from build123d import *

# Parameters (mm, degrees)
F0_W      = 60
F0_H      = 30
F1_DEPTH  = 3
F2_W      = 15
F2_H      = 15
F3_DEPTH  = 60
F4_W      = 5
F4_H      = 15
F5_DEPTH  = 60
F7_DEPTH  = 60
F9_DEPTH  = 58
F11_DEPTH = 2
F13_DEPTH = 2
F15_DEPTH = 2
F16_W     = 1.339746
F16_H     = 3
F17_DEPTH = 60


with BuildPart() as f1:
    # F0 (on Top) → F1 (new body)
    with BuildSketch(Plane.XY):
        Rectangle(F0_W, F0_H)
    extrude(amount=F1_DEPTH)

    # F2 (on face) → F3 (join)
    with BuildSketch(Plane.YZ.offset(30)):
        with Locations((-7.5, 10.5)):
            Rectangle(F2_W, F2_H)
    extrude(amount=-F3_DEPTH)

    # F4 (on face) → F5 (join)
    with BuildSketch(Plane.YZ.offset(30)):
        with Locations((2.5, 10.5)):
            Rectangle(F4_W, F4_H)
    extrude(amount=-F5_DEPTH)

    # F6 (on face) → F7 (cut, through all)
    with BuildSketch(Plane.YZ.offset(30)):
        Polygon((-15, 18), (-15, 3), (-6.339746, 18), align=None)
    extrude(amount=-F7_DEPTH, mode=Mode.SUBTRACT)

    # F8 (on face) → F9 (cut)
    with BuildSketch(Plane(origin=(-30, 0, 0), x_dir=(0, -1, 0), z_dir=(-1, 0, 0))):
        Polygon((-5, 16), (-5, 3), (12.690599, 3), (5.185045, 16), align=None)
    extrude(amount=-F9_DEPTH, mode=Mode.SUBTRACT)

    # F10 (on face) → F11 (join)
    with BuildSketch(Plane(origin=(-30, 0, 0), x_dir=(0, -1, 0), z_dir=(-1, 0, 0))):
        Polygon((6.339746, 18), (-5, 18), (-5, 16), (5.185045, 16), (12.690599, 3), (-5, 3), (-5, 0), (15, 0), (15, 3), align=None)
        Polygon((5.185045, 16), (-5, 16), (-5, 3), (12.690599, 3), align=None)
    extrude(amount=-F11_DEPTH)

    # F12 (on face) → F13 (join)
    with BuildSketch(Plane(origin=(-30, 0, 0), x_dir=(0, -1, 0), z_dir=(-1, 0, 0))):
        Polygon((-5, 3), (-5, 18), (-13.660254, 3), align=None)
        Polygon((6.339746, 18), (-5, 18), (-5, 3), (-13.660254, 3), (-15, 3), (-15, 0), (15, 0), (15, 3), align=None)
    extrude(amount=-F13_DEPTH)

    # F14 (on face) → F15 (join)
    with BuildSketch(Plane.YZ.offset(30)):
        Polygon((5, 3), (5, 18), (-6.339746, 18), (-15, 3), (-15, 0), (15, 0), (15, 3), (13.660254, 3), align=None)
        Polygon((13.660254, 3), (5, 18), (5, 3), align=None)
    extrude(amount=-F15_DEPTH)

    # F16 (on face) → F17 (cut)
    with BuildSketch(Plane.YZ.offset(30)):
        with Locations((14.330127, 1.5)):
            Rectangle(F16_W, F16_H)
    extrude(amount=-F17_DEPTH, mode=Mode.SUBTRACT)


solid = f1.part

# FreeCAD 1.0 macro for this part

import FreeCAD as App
import Part
import Sketcher
from FreeCAD import Vector
Q = App.Units.Quantity


def add_polygon(sketch, points):
    """Adds a closed chain of lines whose ends are joined by coincident constraints."""
    first, n = sketch.GeometryCount, len(points)
    for a, b in zip(points, points[1:] + points[:1]):
        sketch.addGeometry(Part.LineSegment(App.Vector(*a, 0), App.Vector(*b, 0)), False)
    for i in range(n):
        sketch.addConstraint(Sketcher.Constraint("Coincident", first + i, 2, first + (i + 1) % n, 1))

doc = App.newDocument("Part")
body = doc.addObject("PartDesign::Body", "Body")

# Sketch on XY plane
sketch1 = doc.addObject("Sketcher::SketchObject", "Sketch")
body.addObject(sketch1)
sketch1.AttachmentSupport = (doc.XY_Plane, [""])
sketch1.MapMode = "FlatFace"
add_polygon(sketch1, [(-30, 15), (-30, -15), (30, -15), (30, 15)])  # lines 0-3
sketch1.addConstraint([
    Sketcher.Constraint("Vertical", 0),
    Sketcher.Constraint("Horizontal", 1),
    Sketcher.Constraint("Vertical", 2),
    Sketcher.Constraint("Horizontal", 3),
    Sketcher.Constraint("Symmetric", 0, 2, 2, 2, -1, 1),
    Sketcher.Constraint("DistanceX", 1, 1, 1, 2, 60.0),
    Sketcher.Constraint("DistanceY", 0, 2, 0, 1, 30.0),
])
pad1 = doc.addObject("PartDesign::Pad", "Pad")
body.addObject(pad1)
pad1.Profile = sketch1
pad1.Length = 3

# Sketch on YZ plane
sketch2 = doc.addObject("Sketcher::SketchObject", "Sketch001")
body.addObject(sketch2)
sketch2.AttachmentSupport = (doc.YZ_Plane, [""])
sketch2.MapMode = "FlatFace"
sketch2.AttachmentOffset = App.Placement(Vector(0, 0, 30), App.Rotation())
add_polygon(sketch2, [(-15, 18), (-15, 3), (0, 3), (0, 18)])  # lines 0-3
sketch2.addConstraint([
    Sketcher.Constraint("Vertical", 0),
    Sketcher.Constraint("Horizontal", 1),
    Sketcher.Constraint("Vertical", 2),
    Sketcher.Constraint("Horizontal", 3),
    Sketcher.Constraint("PointOnObject", 1, 2, -2),
    Sketcher.Constraint("Equal", 3, 0),
    Sketcher.Constraint("DistanceX", 1, 1, 1, 2, 15.0),
    Sketcher.Constraint("DistanceY", -1, 1, 0, 2, 3.0),
])
pad2 = doc.addObject("PartDesign::Pad", "Pad001")
body.addObject(pad2)
pad2.Profile = sketch2
pad2.Length = 60
pad2.Reversed = True

# Sketch on YZ plane
sketch3 = doc.addObject("Sketcher::SketchObject", "Sketch002")
body.addObject(sketch3)
sketch3.AttachmentSupport = (doc.YZ_Plane, [""])
sketch3.MapMode = "FlatFace"
sketch3.AttachmentOffset = App.Placement(Vector(0, 0, 30), App.Rotation())
add_polygon(sketch3, [(0, 18), (0, 3), (5, 3), (5, 18)])  # lines 0-3
sketch3.addConstraint([
    Sketcher.Constraint("Vertical", 0),
    Sketcher.Constraint("Horizontal", 1),
    Sketcher.Constraint("Vertical", 2),
    Sketcher.Constraint("Horizontal", 3),
    Sketcher.Constraint("PointOnObject", 0, 2, -2),
    Sketcher.Constraint("DistanceX", 1, 1, 1, 2, 5.0),
    Sketcher.Constraint("DistanceY", 0, 2, 0, 1, 15.0),
    Sketcher.Constraint("DistanceY", -1, 1, 0, 2, 3.0),
])
pad3 = doc.addObject("PartDesign::Pad", "Pad002")
body.addObject(pad3)
pad3.Profile = sketch3
pad3.Length = 60
pad3.Reversed = True

# Sketch on YZ plane
sketch4 = doc.addObject("Sketcher::SketchObject", "Sketch003")
body.addObject(sketch4)
sketch4.AttachmentSupport = (doc.YZ_Plane, [""])
sketch4.MapMode = "FlatFace"
sketch4.AttachmentOffset = App.Placement(Vector(0, 0, 30), App.Rotation())
add_polygon(sketch4, [(-15, 18), (-15, 3), (-6.339746, 18)])  # lines 0-2
sketch4.addConstraint([
    Sketcher.Constraint("Vertical", 0),
    Sketcher.Constraint("Horizontal", 2),
    Sketcher.Constraint("DistanceY", 0, 2, 0, 1, 15.0),
    Sketcher.Constraint("Angle", 1, Q("60 deg")),
    Sketcher.Constraint("DistanceX", 0, 2, -1, 1, 15.0),
    Sketcher.Constraint("DistanceY", -1, 1, 0, 2, 3.0),
])
pocket1 = doc.addObject("PartDesign::Pocket", "Pocket")
body.addObject(pocket1)
pocket1.Profile = sketch4
pocket1.Type = "ThroughAll"

# Sketch on YZ plane
sketch5 = doc.addObject("Sketcher::SketchObject", "Sketch004")
body.addObject(sketch5)
sketch5.AttachmentSupport = (doc.YZ_Plane, [""])
sketch5.MapMode = "FlatFace"
sketch5.AttachmentOffset = App.Placement(Vector(0, 0, -30), App.Rotation())
add_polygon(sketch5, [(5, 16), (5, 3), (-12.690599, 3), (-5.185045, 16)])  # lines 0-3
sketch5.addConstraint([
    Sketcher.Constraint("Vertical", 0),
    Sketcher.Constraint("Horizontal", 1),
    Sketcher.Constraint("Horizontal", 3),
    Sketcher.Constraint("DistanceY", 0, 2, 0, 1, 13.0),
    Sketcher.Constraint("Angle", 2, Q("59.999998 deg")),
    Sketcher.Constraint("DistanceX", -1, 1, 0, 2, 5.0),
    Sketcher.Constraint("DistanceY", -1, 1, 0, 2, 3.0),
    Sketcher.Constraint("DistanceX", 1, 2, 1, 1, 17.690599),
])
pocket2 = doc.addObject("PartDesign::Pocket", "Pocket001")
body.addObject(pocket2)
pocket2.Profile = sketch5
pocket2.Length = 58
pocket2.Reversed = True

# Sketch on YZ plane
sketch6 = doc.addObject("Sketcher::SketchObject", "Sketch005")
body.addObject(sketch6)
sketch6.AttachmentSupport = (doc.YZ_Plane, [""])
sketch6.MapMode = "FlatFace"
sketch6.AttachmentOffset = App.Placement(Vector(0, 0, -30), App.Rotation())
add_polygon(sketch6, [(-6.339746, 18), (5, 18), (5, 0), (-15, 0), (-15, 3)])  # lines 0-4
sketch6.addConstraint([
    Sketcher.Constraint("Horizontal", 0),
    Sketcher.Constraint("Vertical", 1),
    Sketcher.Constraint("Horizontal", 2),
    Sketcher.Constraint("Vertical", 3),
    Sketcher.Constraint("PointOnObject", 1, 2, -1),
    Sketcher.Constraint("DistanceX", 2, 2, 2, 1, 20.0),
    Sketcher.Constraint("DistanceY", 1, 2, 1, 1, 18.0),
    Sketcher.Constraint("DistanceY", 3, 1, 3, 2, 3.0),
    Sketcher.Constraint("Angle", 4, Q("60 deg")),
    Sketcher.Constraint("DistanceX", -1, 1, 0, 2, 5.0),
])
pad4 = doc.addObject("PartDesign::Pad", "Pad003")
body.addObject(pad4)
pad4.Profile = sketch6
pad4.Length = 2

# Sketch on YZ plane
sketch7 = doc.addObject("Sketcher::SketchObject", "Sketch006")
body.addObject(sketch7)
sketch7.AttachmentSupport = (doc.YZ_Plane, [""])
sketch7.MapMode = "FlatFace"
sketch7.AttachmentOffset = App.Placement(Vector(0, 0, -30), App.Rotation())
add_polygon(sketch7, [(5, 18), (13.660254, 3), (15, 3), (15, 0), (-15, 0), (-15, 3), (-6.339746, 18)])  # lines 0-6
sketch7.addConstraint([
    Sketcher.Constraint("Horizontal", 1),
    Sketcher.Constraint("Vertical", 2),
    Sketcher.Constraint("Horizontal", 3),
    Sketcher.Constraint("Vertical", 4),
    Sketcher.Constraint("Horizontal", 6),
    Sketcher.Constraint("Symmetric", 2, 2, 3, 2, -1, 1),
    Sketcher.Constraint("Horizontal", 1, 2, 4, 2),
    Sketcher.Constraint("Equal", 0, 5),
    Sketcher.Constraint("DistanceX", 3, 2, 3, 1, 30.0),
    Sketcher.Constraint("DistanceY", 2, 2, 2, 1, 3.0),
    Sketcher.Constraint("Angle", 0, Q("-60 deg")),
    Sketcher.Constraint("DistanceY", -1, 1, 5, 2, 18.0),
    Sketcher.Constraint("DistanceX", -1, 1, 6, 2, 5.0),
])
pad5 = doc.addObject("PartDesign::Pad", "Pad004")
body.addObject(pad5)
pad5.Profile = sketch7
pad5.Length = 2

# Sketch on YZ plane
sketch8 = doc.addObject("Sketcher::SketchObject", "Sketch007")
body.addObject(sketch8)
sketch8.AttachmentSupport = (doc.YZ_Plane, [""])
sketch8.MapMode = "FlatFace"
sketch8.AttachmentOffset = App.Placement(Vector(0, 0, 30), App.Rotation())
add_polygon(sketch8, [(5, 18), (-6.339746, 18), (-15, 3), (-15, 0), (15, 0), (15, 3), (13.660254, 3)])  # lines 0-6
sketch8.addConstraint([
    Sketcher.Constraint("Horizontal", 0),
    Sketcher.Constraint("Vertical", 2),
    Sketcher.Constraint("Horizontal", 3),
    Sketcher.Constraint("Vertical", 4),
    Sketcher.Constraint("Horizontal", 5),
    Sketcher.Constraint("Symmetric", 2, 2, 3, 2, -1, 1),
    Sketcher.Constraint("Horizontal", 1, 2, 4, 2),
    Sketcher.Constraint("Equal", 1, 6),
    Sketcher.Constraint("DistanceX", 3, 1, 3, 2, 30.0),
    Sketcher.Constraint("DistanceY", 2, 2, 2, 1, 3.0),
    Sketcher.Constraint("Angle", 1, Q("-120 deg")),
    Sketcher.Constraint("DistanceY", -1, 1, 0, 2, 18.0),
    Sketcher.Constraint("DistanceX", -1, 1, 6, 2, 5.0),
])
pad6 = doc.addObject("PartDesign::Pad", "Pad005")
body.addObject(pad6)
pad6.Profile = sketch8
pad6.Length = 2
pad6.Reversed = True

# Sketch on YZ plane
sketch9 = doc.addObject("Sketcher::SketchObject", "Sketch008")
body.addObject(sketch9)
sketch9.AttachmentSupport = (doc.YZ_Plane, [""])
sketch9.MapMode = "FlatFace"
sketch9.AttachmentOffset = App.Placement(Vector(0, 0, 30), App.Rotation())
add_polygon(sketch9, [(13.660254, 3), (13.660254, 0), (15, 0), (15, 3)])  # lines 0-3
sketch9.addConstraint([
    Sketcher.Constraint("Vertical", 0),
    Sketcher.Constraint("Horizontal", 1),
    Sketcher.Constraint("Vertical", 2),
    Sketcher.Constraint("Horizontal", 3),
    Sketcher.Constraint("PointOnObject", 0, 2, -1),
    Sketcher.Constraint("DistanceY", 0, 2, 0, 1, 3.0),
    Sketcher.Constraint("DistanceX", -1, 1, 1, 2, 15.0),
    Sketcher.Constraint("DistanceX", 1, 1, 1, 2, 1.339746),
])
pocket3 = doc.addObject("PartDesign::Pocket", "Pocket002")
body.addObject(pocket3)
pocket3.Profile = sketch9
pocket3.Length = 60

doc.recompute()
